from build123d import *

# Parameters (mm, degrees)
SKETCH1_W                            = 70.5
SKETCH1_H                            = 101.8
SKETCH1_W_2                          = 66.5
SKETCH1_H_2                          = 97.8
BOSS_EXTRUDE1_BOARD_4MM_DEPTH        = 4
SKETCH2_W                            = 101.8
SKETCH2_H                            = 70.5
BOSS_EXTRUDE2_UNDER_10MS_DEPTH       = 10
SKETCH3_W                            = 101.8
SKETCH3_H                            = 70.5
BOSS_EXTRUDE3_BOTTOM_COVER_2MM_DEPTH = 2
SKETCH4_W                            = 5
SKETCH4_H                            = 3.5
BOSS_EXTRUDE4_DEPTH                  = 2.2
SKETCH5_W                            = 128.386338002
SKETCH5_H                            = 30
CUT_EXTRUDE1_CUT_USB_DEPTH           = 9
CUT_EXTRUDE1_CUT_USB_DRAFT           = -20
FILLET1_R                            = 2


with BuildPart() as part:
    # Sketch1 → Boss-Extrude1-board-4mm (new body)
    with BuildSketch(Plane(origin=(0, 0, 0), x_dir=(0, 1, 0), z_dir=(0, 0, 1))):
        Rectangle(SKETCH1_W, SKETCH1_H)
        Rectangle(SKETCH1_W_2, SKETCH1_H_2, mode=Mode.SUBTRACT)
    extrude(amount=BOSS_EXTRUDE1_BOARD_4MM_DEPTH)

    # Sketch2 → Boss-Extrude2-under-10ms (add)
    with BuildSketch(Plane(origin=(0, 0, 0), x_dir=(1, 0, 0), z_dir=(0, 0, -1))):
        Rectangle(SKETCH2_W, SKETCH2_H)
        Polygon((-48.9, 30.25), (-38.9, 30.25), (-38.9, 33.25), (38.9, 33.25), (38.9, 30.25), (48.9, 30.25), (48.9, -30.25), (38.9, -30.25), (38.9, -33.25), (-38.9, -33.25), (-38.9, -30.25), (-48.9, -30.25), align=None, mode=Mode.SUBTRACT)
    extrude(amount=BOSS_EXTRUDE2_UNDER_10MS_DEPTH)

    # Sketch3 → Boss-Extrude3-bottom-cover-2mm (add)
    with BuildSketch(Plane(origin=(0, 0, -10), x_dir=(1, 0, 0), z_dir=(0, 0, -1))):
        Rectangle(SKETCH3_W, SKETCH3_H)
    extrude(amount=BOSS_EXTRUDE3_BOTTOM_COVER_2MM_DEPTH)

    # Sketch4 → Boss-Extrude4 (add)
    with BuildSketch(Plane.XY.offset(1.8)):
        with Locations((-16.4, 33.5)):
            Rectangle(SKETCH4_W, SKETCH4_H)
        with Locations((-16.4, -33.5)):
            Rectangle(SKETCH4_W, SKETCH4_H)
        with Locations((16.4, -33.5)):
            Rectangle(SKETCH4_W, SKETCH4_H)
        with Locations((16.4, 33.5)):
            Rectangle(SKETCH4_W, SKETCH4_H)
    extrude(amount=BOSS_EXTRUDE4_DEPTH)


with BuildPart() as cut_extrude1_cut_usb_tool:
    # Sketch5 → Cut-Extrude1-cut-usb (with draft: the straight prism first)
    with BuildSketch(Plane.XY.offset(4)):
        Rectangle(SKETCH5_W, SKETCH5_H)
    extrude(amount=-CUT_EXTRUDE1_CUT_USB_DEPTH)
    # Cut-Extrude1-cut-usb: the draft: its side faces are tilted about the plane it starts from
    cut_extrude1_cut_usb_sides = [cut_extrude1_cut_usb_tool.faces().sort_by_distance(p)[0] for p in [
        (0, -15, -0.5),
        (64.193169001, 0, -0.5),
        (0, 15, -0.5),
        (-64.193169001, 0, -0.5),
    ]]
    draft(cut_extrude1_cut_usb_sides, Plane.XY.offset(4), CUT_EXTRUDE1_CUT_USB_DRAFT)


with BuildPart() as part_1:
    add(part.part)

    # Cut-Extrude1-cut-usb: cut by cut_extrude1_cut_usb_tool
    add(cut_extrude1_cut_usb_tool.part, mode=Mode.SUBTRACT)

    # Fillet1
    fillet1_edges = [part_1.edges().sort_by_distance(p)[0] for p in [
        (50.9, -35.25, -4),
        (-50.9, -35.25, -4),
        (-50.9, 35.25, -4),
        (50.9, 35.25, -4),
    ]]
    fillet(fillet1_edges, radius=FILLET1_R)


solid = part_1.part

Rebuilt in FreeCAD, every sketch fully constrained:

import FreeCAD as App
import Part
import Sketcher
from FreeCAD import Vector


def edges_at(feature, points):
    """Names of the edges that pass closest to the given points."""
    edges = feature.Shape.Edges
    near = lambda p: min(range(len(edges)), key=lambda i: edges[i].distToShape(Part.Vertex(*p))[0])
    return sorted({f"Edge{near(p) + 1}" for p in points})


def faces_at(feature, points):
    """Names of the faces that lie closest to the given points."""
    faces = feature.Shape.Faces
    near = lambda p: min(range(len(faces)), key=lambda i: faces[i].distToShape(Part.Vertex(*p))[0])
    return sorted({f"Face{near(p) + 1}" for p in points})


def add_polygon(sketch, points):
    """Adds a closed chain of lines whose ends are joined by coincident constraints."""
    first, n = sketch.GeometryCount, len(points)
    for a, b in zip(points, points[1:] + points[:1]):
        sketch.addGeometry(Part.LineSegment(App.Vector(*a, 0), App.Vector(*b, 0)), False)
    for i in range(n):
        sketch.addConstraint(Sketcher.Constraint("Coincident", first + i, 2, first + (i + 1) % n, 1))

doc = App.newDocument("Part")
body = doc.addObject("PartDesign::Body", "Body")

# Sketch on XY plane
sketch1 = doc.addObject("Sketcher::SketchObject", "Sketch")
body.addObject(sketch1)
sketch1.AttachmentSupport = (doc.XY_Plane, [""])
sketch1.MapMode = "FlatFace"
add_polygon(sketch1, [(-51, -35), (51, -35), (51, 35), (-51, 35)])  # lines 0-3
add_polygon(sketch1, [(49, 33), (49, -33), (-49, -33), (-49, 33)])  # lines 4-7
sketch1.addConstraint(Sketcher.Constraint("Horizontal", 0))
sketch1.addConstraint(Sketcher.Constraint("Vertical", 1))
sketch1.addConstraint(Sketcher.Constraint("Horizontal", 2))
sketch1.addConstraint(Sketcher.Constraint("Vertical", 3))
sketch1.addConstraint(Sketcher.Constraint("Vertical", 4))
sketch1.addConstraint(Sketcher.Constraint("Horizontal", 5))
sketch1.addConstraint(Sketcher.Constraint("Vertical", 6))
sketch1.addConstraint(Sketcher.Constraint("Horizontal", 7))
sketch1.addConstraint(Sketcher.Constraint("Symmetric", 0, 2, 2, 2, -1, 1))
sketch1.addConstraint(Sketcher.Constraint("Symmetric", 4, 2, 6, 2, -1, 1))
sketch1.addConstraint(Sketcher.Constraint("DistanceX", 0, 1, 0, 2, 101.8))
sketch1.addConstraint(Sketcher.Constraint("DistanceX", 5, 2, 5, 1, 97.8))
sketch1.addConstraint(Sketcher.Constraint("DistanceY", 1, 1, 1, 2, 70.5))
sketch1.addConstraint(Sketcher.Constraint("DistanceY", 4, 2, 4, 1, 66.5))
pad1 = doc.addObject("PartDesign::Pad", "Pad")
body.addObject(pad1)
pad1.Profile = sketch1
pad1.Length = 4

# Sketch on XY plane
sketch2 = doc.addObject("Sketcher::SketchObject", "Sketch001")
body.addObject(sketch2)
sketch2.AttachmentSupport = (doc.XY_Plane, [""])
sketch2.MapMode = "FlatFace"
add_polygon(sketch2, [(-50.9, -35.2), (-50.9, 35.2), (50.9, 35.2), (50.9, -35.2)])  # lines 0-3
add_polygon(sketch2, [(-48.9, 30.2), (-48.9, -30.2), (-38.9, -30.2), (-38.9, -33.2), (38.9, -33.2), (38.9, -30.2), (48.9, -30.2), (48.9, 30.2), (38.9, 30.2), (38.9, 33.2), (-38.9, 33.2), (-38.9, 30.2)])  # lines 4-15
sketch2.addConstraint(Sketcher.Constraint("Vertical", 0))
sketch2.addConstraint(Sketcher.Constraint("Horizontal", 1))
sketch2.addConstraint(Sketcher.Constraint("Vertical", 2))
sketch2.addConstraint(Sketcher.Constraint("Horizontal", 3))
sketch2.addConstraint(Sketcher.Constraint("Vertical", 4))
sketch2.addConstraint(Sketcher.Constraint("Horizontal", 5))
sketch2.addConstraint(Sketcher.Constraint("Vertical", 6))
sketch2.addConstraint(Sketcher.Constraint("Horizontal", 7))
sketch2.addConstraint(Sketcher.Constraint("Vertical", 8))
sketch2.addConstraint(Sketcher.Constraint("Horizontal", 9))
sketch2.addConstraint(Sketcher.Constraint("Vertical", 10))
sketch2.addConstraint(Sketcher.Constraint("Horizontal", 11))
sketch2.addConstraint(Sketcher.Constraint("Vertical", 12))
sketch2.addConstraint(Sketcher.Constraint("Horizontal", 13))
sketch2.addConstraint(Sketcher.Constraint("Vertical", 14))
sketch2.addConstraint(Sketcher.Constraint("Horizontal", 15))
sketch2.addConstraint(Sketcher.Constraint("Symmetric", 0, 2, 2, 2, -1, 1))
sketch2.addConstraint(Sketcher.Constraint("Symmetric", 4, 2, 10, 2, -1, 1))
sketch2.addConstraint(Sketcher.Constraint("Symmetric", 6, 2, 12, 2, -1, 1))
sketch2.addConstraint(Sketcher.Constraint("Symmetric", 8, 2, 14, 2, -1, 1))
sketch2.addConstraint(Sketcher.Constraint("Symmetric", 5, 2, 8, 2, -2))
sketch2.addConstraint(Sketcher.Constraint("DistanceX", 5, 1, 5, 2, 10.0))
sketch2.addConstraint(Sketcher.Constraint("DistanceY", 6, 2, 6, 1, 3.0))
sketch2.addConstraint(Sketcher.Constraint("DistanceX", 1, 1, 1, 2, 101.8))
sketch2.addConstraint(Sketcher.Constraint("DistanceX", 7, 1, 7, 2, 77.8))
sketch2.addConstraint(Sketcher.Constraint("DistanceY", 0, 1, 0, 2, 70.5))
sketch2.addConstraint(Sketcher.Constraint("DistanceY", 4, 2, 4, 1, 60.5))
pad2 = doc.addObject("PartDesign::Pad", "Pad001")
body.addObject(pad2)
pad2.Profile = sketch2
pad2.Length = 10
pad2.Reversed = True

# Sketch on XY plane
sketch3 = doc.addObject("Sketcher::SketchObject", "Sketch002")
body.addObject(sketch3)
sketch3.AttachmentSupport = (doc.XY_Plane, [""])
sketch3.MapMode = "FlatFace"
sketch3.AttachmentOffset = App.Placement(Vector(0, 0, -10), App.Rotation())
add_polygon(sketch3, [(-51, -35), (-51, 35), (51, 35), (51, -35)])  # lines 0-3
sketch3.addConstraint(Sketcher.Constraint("Vertical", 0))
sketch3.addConstraint(Sketcher.Constraint("Horizontal", 1))
sketch3.addConstraint(Sketcher.Constraint("Vertical", 2))
sketch3.addConstraint(Sketcher.Constraint("Horizontal", 3))
sketch3.addConstraint(Sketcher.Constraint("Symmetric", 0, 2, 2, 2, -1, 1))
sketch3.addConstraint(Sketcher.Constraint("DistanceX", 1, 1, 1, 2, 101.8))
sketch3.addConstraint(Sketcher.Constraint("DistanceY", 0, 1, 0, 2, 70.5))
pad3 = doc.addObject("PartDesign::Pad", "Pad002")
body.addObject(pad3)
pad3.Profile = sketch3
pad3.Length = 2
pad3.Reversed = True

# Sketch on XY plane
sketch4 = doc.addObject("Sketcher::SketchObject", "Sketch003")
body.addObject(sketch4)
sketch4.AttachmentSupport = (doc.XY_Plane, [""])
sketch4.MapMode = "FlatFace"
sketch4.AttachmentOffset = App.Placement(Vector(0, 0, 1.8), App.Rotation())
add_polygon(sketch4, [(-18.9, 35.2), (-18.9, 31.8), (-13.9, 31.8), (-13.9, 35.2)])  # lines 0-3
add_polygon(sketch4, [(-18.9, -31.8), (-18.9, -35.2), (-13.9, -35.2), (-13.9, -31.8)])  # lines 4-7
add_polygon(sketch4, [(13.9, -31.8), (13.9, -35.2), (18.9, -35.2), (18.9, -31.8)])  # lines 8-11
add_polygon(sketch4, [(13.9, 35.2), (13.9, 31.8), (18.9, 31.8), (18.9, 35.2)])  # lines 12-15
sketch4.addConstraint(Sketcher.Constraint("Vertical", 0))
sketch4.addConstraint(Sketcher.Constraint("Horizontal", 1))
sketch4.addConstraint(Sketcher.Constraint("Vertical", 2))
sketch4.addConstraint(Sketcher.Constraint("Horizontal", 3))
sketch4.addConstraint(Sketcher.Constraint("Vertical", 4))
sketch4.addConstraint(Sketcher.Constraint("Horizontal", 5))
sketch4.addConstraint(Sketcher.Constraint("Vertical", 6))
sketch4.addConstraint(Sketcher.Constraint("Horizontal", 7))
sketch4.addConstraint(Sketcher.Constraint("Vertical", 8))
sketch4.addConstraint(Sketcher.Constraint("Horizontal", 9))
sketch4.addConstraint(Sketcher.Constraint("Vertical", 10))
sketch4.addConstraint(Sketcher.Constraint("Horizontal", 11))
sketch4.addConstraint(Sketcher.Constraint("Vertical", 12))
sketch4.addConstraint(Sketcher.Constraint("Horizontal", 13))
sketch4.addConstraint(Sketcher.Constraint("Vertical", 14))
sketch4.addConstraint(Sketcher.Constraint("Horizontal", 15))
sketch4.addConstraint(Sketcher.Constraint("Symmetric", 2, 2, 8, 2, -1, 1))
sketch4.addConstraint(Sketcher.Constraint("Symmetric", 0, 2, 10, 2, -1, 1))
sketch4.addConstraint(Sketcher.Constraint("Symmetric", 6, 2, 12, 2, -1, 1))
sketch4.addConstraint(Sketcher.Constraint("Symmetric", 4, 2, 14, 2, -1, 1))
sketch4.addConstraint(Sketcher.Constraint("Symmetric", 5, 2, 8, 2, -2))
sketch4.addConstraint(Sketcher.Constraint("Symmetric", 7, 2, 10, 2, -2))
sketch4.addConstraint(Sketcher.Constraint("DistanceX", 1, 1, 1, 2, 5.0))
sketch4.addConstraint(Sketcher.Constraint("DistanceY", 0, 2, 0, 1, 3.5))
sketch4.addConstraint(Sketcher.Constraint("DistanceY", 4, 2, 0, 2, 67.0))
sketch4.addConstraint(Sketcher.Constraint("DistanceX", 0, 2, -1, 1, 18.9))
pad4 = doc.addObject("PartDesign::Pad", "Pad003")
body.addObject(pad4)
pad4.Profile = sketch4
pad4.Length = 2.2
body2 = doc.addObject("PartDesign::Body", "Body001")

# Sketch on XY plane
sketch5 = doc.addObject("Sketcher::SketchObject", "Sketch004")
body2.addObject(sketch5)
sketch5.AttachmentSupport = (doc.getObject("XY_Plane001"), [""])
sketch5.MapMode = "FlatFace"
sketch5.AttachmentOffset = App.Placement(Vector(0, 0, 4), App.Rotation())
add_polygon(sketch5, [(-64, 15), (-64, -15), (64, -15), (64, 15)])  # lines 0-3
sketch5.addConstraint(Sketcher.Constraint("Vertical", 0))
sketch5.addConstraint(Sketcher.Constraint("Horizontal", 1))
sketch5.addConstraint(Sketcher.Constraint("Vertical", 2))
sketch5.addConstraint(Sketcher.Constraint("Horizontal", 3))
sketch5.addConstraint(Sketcher.Constraint("Symmetric", 0, 2, 2, 2, -1, 1))
sketch5.addConstraint(Sketcher.Constraint("DistanceY", 0, 2, 0, 1, 30.0))
sketch5.addConstraint(Sketcher.Constraint("DistanceX", 1, 1, 1, 2, 128.386338))
pad5 = doc.addObject("PartDesign::Pad", "Pad004")
body2.addObject(pad5)
pad5.Profile = sketch5
pad5.Length = 9
pad5.Reversed = True
doc.recompute()

datumplane = doc.addObject("PartDesign::Plane", "DatumPlane")
body2.addObject(datumplane)
datumplane.AttachmentSupport = (doc.getObject("XY_Plane001"), [""])
datumplane.MapMode = "FlatFace"
datumplane.AttachmentOffset = App.Placement(Vector(0, 0, 4), App.Rotation())
draft = doc.addObject("PartDesign::Draft", "Draft")
body2.addObject(draft)
draft.Base = (pad5, faces_at(pad5, [
    (0, -15, -0.5),
    (64.193, 0, -0.5),
    (0, 15, -0.5),
    (-64.193, 0, -0.5),
]))
draft.NeutralPlane = (datumplane, [""])
draft.Angle = 20
draft.Reversed = True
doc.recompute()

boolean = doc.addObject("PartDesign::Boolean", "Boolean")
body.addObject(boolean)
boolean.Type = "Cut"
boolean.addObjects([body2])
doc.recompute()

fillet = doc.addObject("PartDesign::Fillet", "Fillet")
body.addObject(fillet)
fillet.Base = (boolean, edges_at(boolean, [
    (50.9, -35.25, -4),
    (-50.9, -35.25, -4),
    (-50.9, 35.25, -4),
    (50.9, 35.25, -4),
]))
fillet.Radius = 2

doc.recompute()
